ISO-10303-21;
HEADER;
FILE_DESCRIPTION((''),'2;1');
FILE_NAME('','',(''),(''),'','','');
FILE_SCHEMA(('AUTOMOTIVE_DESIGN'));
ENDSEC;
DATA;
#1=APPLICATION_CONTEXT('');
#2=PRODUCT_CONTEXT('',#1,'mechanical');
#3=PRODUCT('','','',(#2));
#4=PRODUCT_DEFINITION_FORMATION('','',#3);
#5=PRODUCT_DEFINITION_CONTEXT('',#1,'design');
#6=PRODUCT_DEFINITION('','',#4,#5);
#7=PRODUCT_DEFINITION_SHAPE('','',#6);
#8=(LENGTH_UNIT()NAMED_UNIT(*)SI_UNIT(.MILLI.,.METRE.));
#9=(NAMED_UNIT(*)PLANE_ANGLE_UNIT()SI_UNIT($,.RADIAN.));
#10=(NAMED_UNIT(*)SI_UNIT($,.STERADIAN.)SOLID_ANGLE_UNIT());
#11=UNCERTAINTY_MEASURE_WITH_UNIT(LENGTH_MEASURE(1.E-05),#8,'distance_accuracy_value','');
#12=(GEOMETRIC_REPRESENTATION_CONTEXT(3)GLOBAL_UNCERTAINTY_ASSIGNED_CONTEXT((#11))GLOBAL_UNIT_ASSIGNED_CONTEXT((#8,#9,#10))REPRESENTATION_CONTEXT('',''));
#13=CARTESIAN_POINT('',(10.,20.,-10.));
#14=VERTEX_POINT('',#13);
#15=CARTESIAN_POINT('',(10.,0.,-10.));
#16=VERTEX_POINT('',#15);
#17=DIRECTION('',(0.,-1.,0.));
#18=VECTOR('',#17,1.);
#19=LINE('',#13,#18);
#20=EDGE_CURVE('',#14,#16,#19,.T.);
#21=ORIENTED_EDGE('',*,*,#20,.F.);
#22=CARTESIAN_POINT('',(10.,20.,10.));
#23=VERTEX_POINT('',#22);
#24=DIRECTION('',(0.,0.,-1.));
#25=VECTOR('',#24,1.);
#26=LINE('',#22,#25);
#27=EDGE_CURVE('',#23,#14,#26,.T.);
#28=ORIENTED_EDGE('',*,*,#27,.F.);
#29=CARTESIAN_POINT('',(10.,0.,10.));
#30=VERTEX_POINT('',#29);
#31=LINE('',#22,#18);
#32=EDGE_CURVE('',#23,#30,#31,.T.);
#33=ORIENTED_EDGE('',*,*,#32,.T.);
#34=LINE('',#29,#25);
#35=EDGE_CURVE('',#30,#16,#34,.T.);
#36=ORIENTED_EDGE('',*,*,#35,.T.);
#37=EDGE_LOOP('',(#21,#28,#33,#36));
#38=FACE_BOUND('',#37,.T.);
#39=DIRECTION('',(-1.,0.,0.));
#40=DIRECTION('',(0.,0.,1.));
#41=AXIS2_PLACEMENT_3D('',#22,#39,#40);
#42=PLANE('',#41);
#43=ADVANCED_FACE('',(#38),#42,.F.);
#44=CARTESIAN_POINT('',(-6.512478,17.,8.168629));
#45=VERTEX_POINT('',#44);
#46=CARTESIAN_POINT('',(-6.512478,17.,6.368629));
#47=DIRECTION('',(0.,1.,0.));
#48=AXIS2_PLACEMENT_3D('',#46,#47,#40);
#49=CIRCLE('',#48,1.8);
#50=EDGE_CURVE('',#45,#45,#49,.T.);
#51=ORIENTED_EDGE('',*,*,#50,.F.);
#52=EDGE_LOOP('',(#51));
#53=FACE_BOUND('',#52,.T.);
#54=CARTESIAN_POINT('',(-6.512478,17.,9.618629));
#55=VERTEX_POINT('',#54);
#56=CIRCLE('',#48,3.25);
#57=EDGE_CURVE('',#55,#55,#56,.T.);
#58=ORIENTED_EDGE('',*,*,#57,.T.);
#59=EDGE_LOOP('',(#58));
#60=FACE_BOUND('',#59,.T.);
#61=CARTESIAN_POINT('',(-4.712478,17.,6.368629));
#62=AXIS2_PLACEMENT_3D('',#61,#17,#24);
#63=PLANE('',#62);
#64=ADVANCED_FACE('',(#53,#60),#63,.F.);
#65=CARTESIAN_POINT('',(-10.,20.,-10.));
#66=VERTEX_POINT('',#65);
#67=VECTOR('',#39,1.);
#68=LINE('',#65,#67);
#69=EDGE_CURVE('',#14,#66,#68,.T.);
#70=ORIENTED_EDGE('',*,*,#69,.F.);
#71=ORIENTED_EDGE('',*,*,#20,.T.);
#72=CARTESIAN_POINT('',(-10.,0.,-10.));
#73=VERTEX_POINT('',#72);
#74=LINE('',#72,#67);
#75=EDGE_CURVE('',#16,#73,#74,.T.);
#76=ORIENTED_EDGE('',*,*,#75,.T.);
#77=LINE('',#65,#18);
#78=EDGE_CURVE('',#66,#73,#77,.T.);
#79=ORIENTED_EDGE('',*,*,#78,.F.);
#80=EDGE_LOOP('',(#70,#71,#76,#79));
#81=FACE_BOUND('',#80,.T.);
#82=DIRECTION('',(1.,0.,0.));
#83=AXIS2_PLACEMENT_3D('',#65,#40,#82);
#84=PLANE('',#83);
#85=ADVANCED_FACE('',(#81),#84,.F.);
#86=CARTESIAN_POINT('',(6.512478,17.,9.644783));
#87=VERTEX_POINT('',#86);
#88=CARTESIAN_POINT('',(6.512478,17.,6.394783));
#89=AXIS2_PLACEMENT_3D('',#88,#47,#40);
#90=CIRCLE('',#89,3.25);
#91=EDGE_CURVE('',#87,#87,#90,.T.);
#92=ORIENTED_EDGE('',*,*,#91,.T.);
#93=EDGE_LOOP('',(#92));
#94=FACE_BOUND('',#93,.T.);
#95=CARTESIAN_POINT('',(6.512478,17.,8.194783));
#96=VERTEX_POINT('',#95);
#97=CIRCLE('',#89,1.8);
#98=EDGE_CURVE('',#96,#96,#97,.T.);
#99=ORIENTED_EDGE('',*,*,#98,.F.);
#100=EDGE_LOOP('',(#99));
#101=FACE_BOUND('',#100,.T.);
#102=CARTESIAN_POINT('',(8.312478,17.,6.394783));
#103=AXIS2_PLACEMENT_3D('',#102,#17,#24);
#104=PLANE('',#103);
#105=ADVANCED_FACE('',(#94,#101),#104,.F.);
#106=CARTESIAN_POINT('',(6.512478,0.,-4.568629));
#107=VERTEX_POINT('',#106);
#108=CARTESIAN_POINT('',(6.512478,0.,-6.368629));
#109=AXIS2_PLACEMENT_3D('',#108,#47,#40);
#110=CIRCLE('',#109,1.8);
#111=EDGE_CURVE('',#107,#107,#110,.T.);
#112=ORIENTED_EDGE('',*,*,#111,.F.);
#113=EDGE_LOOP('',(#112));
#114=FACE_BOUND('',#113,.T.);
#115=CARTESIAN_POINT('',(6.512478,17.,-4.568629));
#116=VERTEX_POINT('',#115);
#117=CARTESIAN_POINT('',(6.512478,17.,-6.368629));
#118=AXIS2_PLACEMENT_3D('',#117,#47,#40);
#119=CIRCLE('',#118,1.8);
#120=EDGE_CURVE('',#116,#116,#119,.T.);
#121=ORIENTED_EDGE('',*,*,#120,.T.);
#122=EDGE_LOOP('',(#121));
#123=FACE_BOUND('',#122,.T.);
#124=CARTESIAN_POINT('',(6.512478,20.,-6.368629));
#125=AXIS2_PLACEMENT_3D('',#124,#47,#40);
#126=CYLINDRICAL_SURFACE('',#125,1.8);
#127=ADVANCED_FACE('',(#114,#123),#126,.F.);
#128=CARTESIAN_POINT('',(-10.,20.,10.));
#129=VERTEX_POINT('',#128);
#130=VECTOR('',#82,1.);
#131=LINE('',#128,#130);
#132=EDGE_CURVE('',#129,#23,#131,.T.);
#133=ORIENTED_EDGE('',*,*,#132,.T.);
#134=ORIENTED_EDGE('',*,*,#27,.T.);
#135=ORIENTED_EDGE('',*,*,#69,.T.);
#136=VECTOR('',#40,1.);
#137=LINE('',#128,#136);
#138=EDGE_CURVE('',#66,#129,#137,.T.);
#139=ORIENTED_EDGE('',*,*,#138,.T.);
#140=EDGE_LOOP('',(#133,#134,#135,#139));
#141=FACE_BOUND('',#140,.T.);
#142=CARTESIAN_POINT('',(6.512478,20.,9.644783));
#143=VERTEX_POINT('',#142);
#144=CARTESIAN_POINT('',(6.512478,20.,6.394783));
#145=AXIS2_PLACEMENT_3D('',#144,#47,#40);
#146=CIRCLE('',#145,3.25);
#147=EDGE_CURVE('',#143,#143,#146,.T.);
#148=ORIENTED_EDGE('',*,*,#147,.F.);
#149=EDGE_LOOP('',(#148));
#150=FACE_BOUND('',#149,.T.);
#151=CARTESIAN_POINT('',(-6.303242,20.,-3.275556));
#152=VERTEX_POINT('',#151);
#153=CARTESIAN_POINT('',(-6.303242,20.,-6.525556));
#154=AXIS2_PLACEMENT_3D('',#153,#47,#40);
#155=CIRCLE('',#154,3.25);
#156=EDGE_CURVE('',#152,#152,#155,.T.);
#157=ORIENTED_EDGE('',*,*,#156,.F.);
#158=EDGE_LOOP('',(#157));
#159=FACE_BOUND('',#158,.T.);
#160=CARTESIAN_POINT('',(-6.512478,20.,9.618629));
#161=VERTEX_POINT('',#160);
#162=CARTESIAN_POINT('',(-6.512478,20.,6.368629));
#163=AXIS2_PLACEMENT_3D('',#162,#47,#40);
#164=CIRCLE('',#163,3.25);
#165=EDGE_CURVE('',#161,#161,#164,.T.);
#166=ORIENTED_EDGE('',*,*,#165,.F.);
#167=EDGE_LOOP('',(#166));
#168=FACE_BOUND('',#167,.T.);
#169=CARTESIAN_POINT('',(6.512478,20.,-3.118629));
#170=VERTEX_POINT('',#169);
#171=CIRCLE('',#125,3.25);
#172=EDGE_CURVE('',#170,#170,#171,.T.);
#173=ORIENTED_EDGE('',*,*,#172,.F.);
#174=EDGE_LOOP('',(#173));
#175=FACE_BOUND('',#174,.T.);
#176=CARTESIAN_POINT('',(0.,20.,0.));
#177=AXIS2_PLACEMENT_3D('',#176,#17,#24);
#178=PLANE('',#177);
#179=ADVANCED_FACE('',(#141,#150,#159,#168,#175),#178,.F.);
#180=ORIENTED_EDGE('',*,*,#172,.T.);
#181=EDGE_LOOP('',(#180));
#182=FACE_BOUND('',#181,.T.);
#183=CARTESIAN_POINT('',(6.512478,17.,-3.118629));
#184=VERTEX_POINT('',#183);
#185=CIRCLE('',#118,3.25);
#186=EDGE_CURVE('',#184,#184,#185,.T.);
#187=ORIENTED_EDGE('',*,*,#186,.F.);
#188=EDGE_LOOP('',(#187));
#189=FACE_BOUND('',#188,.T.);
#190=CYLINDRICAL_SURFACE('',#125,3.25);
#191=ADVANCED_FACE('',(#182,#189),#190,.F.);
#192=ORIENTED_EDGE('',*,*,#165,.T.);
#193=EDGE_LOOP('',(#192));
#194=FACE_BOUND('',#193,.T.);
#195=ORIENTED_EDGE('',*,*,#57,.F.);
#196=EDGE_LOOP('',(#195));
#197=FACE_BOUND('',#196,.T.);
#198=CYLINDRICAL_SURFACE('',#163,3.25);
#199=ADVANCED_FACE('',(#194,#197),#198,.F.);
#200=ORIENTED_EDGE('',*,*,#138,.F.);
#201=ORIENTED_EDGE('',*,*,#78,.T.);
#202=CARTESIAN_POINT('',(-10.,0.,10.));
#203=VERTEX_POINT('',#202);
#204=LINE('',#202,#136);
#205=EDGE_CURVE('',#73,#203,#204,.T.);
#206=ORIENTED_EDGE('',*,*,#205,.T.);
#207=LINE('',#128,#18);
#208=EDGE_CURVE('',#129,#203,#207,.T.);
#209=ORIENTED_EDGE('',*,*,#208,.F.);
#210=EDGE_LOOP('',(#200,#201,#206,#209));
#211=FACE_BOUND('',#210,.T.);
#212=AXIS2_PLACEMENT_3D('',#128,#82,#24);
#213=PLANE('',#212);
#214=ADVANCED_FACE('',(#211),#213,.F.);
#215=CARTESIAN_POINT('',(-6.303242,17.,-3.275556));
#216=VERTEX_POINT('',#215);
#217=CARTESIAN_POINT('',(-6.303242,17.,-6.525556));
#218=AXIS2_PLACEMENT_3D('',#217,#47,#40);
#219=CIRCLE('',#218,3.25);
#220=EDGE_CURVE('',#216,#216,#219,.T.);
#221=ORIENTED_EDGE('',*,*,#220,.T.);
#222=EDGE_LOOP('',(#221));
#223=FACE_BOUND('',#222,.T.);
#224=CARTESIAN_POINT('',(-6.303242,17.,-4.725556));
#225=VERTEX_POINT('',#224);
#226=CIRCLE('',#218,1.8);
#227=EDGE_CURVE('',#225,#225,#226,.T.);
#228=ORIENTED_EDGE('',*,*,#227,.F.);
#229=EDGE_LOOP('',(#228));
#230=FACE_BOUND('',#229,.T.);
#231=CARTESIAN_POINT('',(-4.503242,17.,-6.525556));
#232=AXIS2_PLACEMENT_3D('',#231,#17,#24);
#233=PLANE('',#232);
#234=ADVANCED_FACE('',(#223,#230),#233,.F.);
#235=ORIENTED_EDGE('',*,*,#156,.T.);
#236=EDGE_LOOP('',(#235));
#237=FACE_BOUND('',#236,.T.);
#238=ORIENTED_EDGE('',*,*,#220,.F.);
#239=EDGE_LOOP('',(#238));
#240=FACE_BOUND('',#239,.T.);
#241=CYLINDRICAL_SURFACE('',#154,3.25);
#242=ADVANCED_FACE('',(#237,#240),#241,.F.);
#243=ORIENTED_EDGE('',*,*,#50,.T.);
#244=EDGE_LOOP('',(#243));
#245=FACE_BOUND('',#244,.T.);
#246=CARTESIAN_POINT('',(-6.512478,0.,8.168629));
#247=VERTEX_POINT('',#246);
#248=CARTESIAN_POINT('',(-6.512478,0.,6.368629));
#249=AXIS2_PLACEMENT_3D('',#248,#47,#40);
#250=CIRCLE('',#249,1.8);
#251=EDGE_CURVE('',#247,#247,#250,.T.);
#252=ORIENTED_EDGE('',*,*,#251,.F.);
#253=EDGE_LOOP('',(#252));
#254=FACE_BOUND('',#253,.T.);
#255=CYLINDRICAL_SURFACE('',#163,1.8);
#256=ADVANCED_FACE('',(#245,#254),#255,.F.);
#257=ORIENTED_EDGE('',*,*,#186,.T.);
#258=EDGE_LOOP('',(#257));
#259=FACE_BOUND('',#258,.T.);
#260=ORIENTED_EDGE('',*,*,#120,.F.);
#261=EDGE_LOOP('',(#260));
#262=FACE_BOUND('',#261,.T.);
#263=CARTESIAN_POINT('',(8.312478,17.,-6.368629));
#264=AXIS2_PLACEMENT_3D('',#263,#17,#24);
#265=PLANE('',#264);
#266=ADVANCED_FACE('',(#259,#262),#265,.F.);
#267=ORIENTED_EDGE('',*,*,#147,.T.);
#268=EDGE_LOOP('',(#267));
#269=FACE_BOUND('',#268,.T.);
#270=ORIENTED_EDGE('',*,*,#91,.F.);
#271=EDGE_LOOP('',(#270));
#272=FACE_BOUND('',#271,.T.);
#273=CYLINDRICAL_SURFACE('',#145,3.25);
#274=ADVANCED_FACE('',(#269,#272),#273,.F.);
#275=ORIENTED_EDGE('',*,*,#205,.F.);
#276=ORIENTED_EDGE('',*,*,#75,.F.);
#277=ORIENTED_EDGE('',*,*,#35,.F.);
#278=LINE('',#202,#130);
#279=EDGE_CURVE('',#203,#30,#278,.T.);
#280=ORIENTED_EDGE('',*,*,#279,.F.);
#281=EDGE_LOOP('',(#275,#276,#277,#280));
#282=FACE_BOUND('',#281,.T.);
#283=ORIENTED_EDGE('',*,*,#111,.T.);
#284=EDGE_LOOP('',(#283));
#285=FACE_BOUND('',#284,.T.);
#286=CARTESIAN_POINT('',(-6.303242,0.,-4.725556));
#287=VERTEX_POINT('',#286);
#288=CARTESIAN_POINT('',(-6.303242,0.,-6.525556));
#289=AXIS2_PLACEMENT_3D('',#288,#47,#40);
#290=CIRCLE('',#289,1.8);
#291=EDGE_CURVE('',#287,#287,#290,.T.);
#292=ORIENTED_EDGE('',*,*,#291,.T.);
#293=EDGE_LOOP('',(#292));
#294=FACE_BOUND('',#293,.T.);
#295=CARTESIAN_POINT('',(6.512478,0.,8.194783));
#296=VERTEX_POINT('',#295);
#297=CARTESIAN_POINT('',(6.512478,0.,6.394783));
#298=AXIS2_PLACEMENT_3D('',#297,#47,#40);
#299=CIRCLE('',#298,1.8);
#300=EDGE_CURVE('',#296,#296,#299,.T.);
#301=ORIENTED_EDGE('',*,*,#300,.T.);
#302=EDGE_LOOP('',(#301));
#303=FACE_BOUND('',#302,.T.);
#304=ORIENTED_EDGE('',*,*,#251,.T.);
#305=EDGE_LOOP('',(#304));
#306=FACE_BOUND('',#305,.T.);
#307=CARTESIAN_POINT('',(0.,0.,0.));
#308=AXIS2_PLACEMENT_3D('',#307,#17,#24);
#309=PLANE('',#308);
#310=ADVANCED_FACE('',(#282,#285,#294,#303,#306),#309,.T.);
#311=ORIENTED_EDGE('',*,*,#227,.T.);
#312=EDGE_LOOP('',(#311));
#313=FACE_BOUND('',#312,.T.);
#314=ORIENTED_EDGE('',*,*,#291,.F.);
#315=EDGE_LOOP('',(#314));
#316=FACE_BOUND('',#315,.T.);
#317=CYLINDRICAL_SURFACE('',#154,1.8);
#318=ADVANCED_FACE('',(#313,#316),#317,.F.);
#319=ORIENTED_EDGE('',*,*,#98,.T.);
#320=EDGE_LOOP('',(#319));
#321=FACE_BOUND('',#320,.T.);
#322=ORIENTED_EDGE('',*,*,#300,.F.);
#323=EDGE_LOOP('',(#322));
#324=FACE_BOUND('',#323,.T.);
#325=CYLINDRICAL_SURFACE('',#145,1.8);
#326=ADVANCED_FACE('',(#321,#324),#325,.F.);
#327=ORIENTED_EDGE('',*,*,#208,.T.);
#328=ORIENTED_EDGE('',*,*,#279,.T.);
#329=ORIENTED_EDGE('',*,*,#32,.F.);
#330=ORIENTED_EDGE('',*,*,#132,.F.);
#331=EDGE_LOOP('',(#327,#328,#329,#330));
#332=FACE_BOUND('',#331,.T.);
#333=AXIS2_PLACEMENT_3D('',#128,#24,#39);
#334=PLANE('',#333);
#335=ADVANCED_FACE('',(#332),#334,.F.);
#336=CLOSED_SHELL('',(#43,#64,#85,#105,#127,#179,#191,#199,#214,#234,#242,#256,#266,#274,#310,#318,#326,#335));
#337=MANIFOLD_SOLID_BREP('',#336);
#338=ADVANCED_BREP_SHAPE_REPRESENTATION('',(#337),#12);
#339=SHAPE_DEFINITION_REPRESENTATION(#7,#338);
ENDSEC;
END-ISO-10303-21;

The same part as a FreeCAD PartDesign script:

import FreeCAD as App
import Part
import Sketcher


def add_polygon(sketch, points):
    """Adds a closed chain of lines whose ends are joined by coincident constraints."""
    first, n = sketch.GeometryCount, len(points)
    for a, b in zip(points, points[1:] + points[:1]):
        sketch.addGeometry(Part.LineSegment(App.Vector(*a, 0), App.Vector(*b, 0)), False)
    for i in range(n):
        sketch.addConstraint(Sketcher.Constraint("Coincident", first + i, 2, first + (i + 1) % n, 1))

doc = App.newDocument("Part")
body = doc.addObject("PartDesign::Body", "Body")

# Sketch on XZ plane
sketch1 = body.newObject("Sketcher::SketchObject", "Sketch")
sketch1.AttachmentSupport = (doc.getObject("XZ_Plane"), [""])
sketch1.MapMode = "FlatFace"
add_polygon(sketch1, [(-10, -10), (-10, 10), (10, 10), (10, -10)])  # lines 0-3
sketch1.addConstraint(Sketcher.Constraint("Vertical", 0))
sketch1.addConstraint(Sketcher.Constraint("Horizontal", 1))
sketch1.addConstraint(Sketcher.Constraint("Vertical", 2))
sketch1.addConstraint(Sketcher.Constraint("Horizontal", 3))
sketch1.addConstraint(Sketcher.Constraint("Symmetric", 0, 2, 2, 2, -1, 1))
sketch1.addConstraint(Sketcher.Constraint("Equal", 3, 0))
sketch1.addConstraint(Sketcher.Constraint("DistanceX", 1, 1, 1, 2, 20.0))
pad1 = body.newObject("PartDesign::Pad", "Pad")
pad1.Profile = sketch1
pad1.Length = 20
pad1.Reversed = True

# Sketch on XZ plane
sketch2 = body.newObject("Sketcher::SketchObject", "Sketch001")
sketch2.AttachmentSupport = (doc.getObject("XZ_Plane"), [""])
sketch2.MapMode = "FlatFace"
sketch2.AttachmentOffset = App.Placement(App.Vector(0, 0, -20), App.Rotation())
sketch2.addGeometry(Part.Circle(App.Vector(-6.3, -6.5, 0), App.Vector(0, 0, 1), 1.8), False)
sketch2.addGeometry(Part.Circle(App.Vector(6.5, -6.4, 0), App.Vector(0, 0, 1), 1.8), False)
sketch2.addGeometry(Part.Circle(App.Vector(6.5, 6.4, 0), App.Vector(0, 0, 1), 1.8), False)
sketch2.addGeometry(Part.Circle(App.Vector(-6.5, 6.4, 0), App.Vector(0, 0, 1), 1.8), False)
sketch2.addConstraint(Sketcher.Constraint("Equal", 0, 1))
sketch2.addConstraint(Sketcher.Constraint("Equal", 1, 2))
sketch2.addConstraint(Sketcher.Constraint("Equal", 2, 3))
sketch2.addConstraint(Sketcher.Constraint("Symmetric", 1, 3, 3, 3, -1, 1))
sketch2.addConstraint(Sketcher.Constraint("Vertical", 1, 3, 2, 3))
sketch2.addConstraint(Sketcher.Constraint("Diameter", 0, 3.6))
sketch2.addConstraint(Sketcher.Constraint("DistanceX", -1, 1, 1, 3, 6.512478))
sketch2.addConstraint(Sketcher.Constraint("DistanceY", 1, 3, -1, 1, 6.368629))
sketch2.addConstraint(Sketcher.Constraint("DistanceX", 0, 3, 1, 3, 12.815721))
sketch2.addConstraint(Sketcher.Constraint("DistanceY", 1, 3, 2, 3, 12.763412))
sketch2.addConstraint(Sketcher.Constraint("DistanceY", 0, 3, 2, 3, 12.920339))
doc.recompute()
hole = body.newObject("PartDesign::Hole", "Hole")
hole.Profile = sketch2
hole.ThreadType = "None"
hole.Diameter = 3.6
hole.DepthType = "ThroughAll"
hole.HoleCutType = "Counterbore"
hole.HoleCutDiameter = 6.5
hole.HoleCutDepth = 3
hole.Reversed = True

doc.recompute()
